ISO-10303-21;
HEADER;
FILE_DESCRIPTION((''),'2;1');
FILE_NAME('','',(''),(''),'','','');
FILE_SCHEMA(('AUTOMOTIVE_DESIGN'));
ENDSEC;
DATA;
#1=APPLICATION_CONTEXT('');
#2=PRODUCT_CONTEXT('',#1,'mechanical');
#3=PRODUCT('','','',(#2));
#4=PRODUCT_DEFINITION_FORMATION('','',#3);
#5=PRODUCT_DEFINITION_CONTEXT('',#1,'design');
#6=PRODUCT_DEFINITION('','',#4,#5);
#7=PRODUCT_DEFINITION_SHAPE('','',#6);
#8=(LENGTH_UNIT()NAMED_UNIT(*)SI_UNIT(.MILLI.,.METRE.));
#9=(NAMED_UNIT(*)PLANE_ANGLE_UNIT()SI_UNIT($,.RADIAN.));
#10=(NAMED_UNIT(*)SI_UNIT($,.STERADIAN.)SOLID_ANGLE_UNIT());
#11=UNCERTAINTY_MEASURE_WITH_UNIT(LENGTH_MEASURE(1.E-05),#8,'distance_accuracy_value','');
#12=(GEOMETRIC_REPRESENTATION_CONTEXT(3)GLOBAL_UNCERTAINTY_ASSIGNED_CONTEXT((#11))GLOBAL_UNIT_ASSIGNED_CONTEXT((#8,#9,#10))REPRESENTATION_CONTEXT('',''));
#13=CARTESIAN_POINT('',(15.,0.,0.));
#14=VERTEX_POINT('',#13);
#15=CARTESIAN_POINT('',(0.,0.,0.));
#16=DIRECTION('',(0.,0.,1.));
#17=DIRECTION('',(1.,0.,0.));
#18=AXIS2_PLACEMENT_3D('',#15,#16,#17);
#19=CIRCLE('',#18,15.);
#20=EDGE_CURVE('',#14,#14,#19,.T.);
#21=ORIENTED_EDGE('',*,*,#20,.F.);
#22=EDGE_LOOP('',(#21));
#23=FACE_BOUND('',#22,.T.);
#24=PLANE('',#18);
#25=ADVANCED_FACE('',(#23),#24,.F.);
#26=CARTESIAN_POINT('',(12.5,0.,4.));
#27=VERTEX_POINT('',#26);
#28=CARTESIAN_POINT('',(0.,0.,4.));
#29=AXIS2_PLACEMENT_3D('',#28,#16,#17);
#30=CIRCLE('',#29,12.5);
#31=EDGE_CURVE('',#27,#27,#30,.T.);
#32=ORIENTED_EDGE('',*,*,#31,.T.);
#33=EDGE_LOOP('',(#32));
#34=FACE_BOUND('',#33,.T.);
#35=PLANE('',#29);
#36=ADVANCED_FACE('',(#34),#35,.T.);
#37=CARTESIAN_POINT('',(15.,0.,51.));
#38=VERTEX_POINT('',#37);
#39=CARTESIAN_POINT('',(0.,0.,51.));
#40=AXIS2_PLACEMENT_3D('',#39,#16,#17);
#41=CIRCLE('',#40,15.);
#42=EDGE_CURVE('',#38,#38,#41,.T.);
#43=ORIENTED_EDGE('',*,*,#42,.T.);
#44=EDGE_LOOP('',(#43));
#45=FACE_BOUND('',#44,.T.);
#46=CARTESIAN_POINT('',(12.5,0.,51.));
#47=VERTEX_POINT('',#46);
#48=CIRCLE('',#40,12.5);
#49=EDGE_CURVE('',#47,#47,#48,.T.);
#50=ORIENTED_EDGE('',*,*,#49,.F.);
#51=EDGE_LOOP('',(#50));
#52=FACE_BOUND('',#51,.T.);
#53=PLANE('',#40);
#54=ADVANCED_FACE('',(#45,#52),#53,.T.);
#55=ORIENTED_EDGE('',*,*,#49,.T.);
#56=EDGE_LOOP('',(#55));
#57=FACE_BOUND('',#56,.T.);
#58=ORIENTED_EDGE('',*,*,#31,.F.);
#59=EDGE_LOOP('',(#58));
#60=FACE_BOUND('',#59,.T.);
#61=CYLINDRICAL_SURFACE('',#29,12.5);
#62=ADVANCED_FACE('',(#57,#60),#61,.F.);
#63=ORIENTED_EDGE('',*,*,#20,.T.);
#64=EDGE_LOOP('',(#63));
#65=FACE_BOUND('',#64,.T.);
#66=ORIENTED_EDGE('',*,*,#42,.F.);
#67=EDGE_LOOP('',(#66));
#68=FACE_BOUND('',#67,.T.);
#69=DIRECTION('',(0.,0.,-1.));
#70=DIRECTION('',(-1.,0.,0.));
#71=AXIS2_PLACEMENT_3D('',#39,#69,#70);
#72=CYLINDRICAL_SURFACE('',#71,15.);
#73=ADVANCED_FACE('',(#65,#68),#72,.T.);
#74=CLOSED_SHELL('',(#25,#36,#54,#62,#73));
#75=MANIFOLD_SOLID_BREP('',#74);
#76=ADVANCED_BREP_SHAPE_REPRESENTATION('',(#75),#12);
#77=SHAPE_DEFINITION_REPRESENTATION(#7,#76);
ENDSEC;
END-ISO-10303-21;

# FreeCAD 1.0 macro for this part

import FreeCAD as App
import Part
import Sketcher
from FreeCAD import Vector

doc = App.newDocument("Part")
body = doc.addObject("PartDesign::Body", "Body")

# Sketch on XY plane
sketch1 = body.newObject("Sketcher::SketchObject", "Sketch")
sketch1.AttachmentSupport = (doc.getObject("XY_Plane"), [""])
sketch1.MapMode = "FlatFace"
sketch1.addGeometry(Part.Circle(Vector(0, 0, 0), Vector(0, 0, 1), 15), False)
sketch1.addConstraint([
    Sketcher.Constraint("Coincident", 0, 3, -1, 1),
    Sketcher.Constraint("Diameter", 0, 30.0),
])
pad1 = body.newObject("PartDesign::Pad", "Pad")
pad1.Profile = sketch1
pad1.Length = 51

# Sketch on XY plane
sketch2 = body.newObject("Sketcher::SketchObject", "Sketch001")
sketch2.AttachmentSupport = (doc.getObject("XY_Plane"), [""])
sketch2.MapMode = "FlatFace"
sketch2.AttachmentOffset = App.Placement(Vector(0, 0, 51), App.Rotation())
sketch2.addGeometry(Part.Circle(Vector(0, 0, 0), Vector(0, 0, 1), 12), False)
sketch2.addConstraint([
    Sketcher.Constraint("Coincident", 0, 3, -1, 1),
    Sketcher.Constraint("Diameter", 0, 25.0),
])
pocket1 = body.newObject("PartDesign::Pocket", "Pocket")
pocket1.Profile = sketch2
pocket1.Length = 47

doc.recompute()
